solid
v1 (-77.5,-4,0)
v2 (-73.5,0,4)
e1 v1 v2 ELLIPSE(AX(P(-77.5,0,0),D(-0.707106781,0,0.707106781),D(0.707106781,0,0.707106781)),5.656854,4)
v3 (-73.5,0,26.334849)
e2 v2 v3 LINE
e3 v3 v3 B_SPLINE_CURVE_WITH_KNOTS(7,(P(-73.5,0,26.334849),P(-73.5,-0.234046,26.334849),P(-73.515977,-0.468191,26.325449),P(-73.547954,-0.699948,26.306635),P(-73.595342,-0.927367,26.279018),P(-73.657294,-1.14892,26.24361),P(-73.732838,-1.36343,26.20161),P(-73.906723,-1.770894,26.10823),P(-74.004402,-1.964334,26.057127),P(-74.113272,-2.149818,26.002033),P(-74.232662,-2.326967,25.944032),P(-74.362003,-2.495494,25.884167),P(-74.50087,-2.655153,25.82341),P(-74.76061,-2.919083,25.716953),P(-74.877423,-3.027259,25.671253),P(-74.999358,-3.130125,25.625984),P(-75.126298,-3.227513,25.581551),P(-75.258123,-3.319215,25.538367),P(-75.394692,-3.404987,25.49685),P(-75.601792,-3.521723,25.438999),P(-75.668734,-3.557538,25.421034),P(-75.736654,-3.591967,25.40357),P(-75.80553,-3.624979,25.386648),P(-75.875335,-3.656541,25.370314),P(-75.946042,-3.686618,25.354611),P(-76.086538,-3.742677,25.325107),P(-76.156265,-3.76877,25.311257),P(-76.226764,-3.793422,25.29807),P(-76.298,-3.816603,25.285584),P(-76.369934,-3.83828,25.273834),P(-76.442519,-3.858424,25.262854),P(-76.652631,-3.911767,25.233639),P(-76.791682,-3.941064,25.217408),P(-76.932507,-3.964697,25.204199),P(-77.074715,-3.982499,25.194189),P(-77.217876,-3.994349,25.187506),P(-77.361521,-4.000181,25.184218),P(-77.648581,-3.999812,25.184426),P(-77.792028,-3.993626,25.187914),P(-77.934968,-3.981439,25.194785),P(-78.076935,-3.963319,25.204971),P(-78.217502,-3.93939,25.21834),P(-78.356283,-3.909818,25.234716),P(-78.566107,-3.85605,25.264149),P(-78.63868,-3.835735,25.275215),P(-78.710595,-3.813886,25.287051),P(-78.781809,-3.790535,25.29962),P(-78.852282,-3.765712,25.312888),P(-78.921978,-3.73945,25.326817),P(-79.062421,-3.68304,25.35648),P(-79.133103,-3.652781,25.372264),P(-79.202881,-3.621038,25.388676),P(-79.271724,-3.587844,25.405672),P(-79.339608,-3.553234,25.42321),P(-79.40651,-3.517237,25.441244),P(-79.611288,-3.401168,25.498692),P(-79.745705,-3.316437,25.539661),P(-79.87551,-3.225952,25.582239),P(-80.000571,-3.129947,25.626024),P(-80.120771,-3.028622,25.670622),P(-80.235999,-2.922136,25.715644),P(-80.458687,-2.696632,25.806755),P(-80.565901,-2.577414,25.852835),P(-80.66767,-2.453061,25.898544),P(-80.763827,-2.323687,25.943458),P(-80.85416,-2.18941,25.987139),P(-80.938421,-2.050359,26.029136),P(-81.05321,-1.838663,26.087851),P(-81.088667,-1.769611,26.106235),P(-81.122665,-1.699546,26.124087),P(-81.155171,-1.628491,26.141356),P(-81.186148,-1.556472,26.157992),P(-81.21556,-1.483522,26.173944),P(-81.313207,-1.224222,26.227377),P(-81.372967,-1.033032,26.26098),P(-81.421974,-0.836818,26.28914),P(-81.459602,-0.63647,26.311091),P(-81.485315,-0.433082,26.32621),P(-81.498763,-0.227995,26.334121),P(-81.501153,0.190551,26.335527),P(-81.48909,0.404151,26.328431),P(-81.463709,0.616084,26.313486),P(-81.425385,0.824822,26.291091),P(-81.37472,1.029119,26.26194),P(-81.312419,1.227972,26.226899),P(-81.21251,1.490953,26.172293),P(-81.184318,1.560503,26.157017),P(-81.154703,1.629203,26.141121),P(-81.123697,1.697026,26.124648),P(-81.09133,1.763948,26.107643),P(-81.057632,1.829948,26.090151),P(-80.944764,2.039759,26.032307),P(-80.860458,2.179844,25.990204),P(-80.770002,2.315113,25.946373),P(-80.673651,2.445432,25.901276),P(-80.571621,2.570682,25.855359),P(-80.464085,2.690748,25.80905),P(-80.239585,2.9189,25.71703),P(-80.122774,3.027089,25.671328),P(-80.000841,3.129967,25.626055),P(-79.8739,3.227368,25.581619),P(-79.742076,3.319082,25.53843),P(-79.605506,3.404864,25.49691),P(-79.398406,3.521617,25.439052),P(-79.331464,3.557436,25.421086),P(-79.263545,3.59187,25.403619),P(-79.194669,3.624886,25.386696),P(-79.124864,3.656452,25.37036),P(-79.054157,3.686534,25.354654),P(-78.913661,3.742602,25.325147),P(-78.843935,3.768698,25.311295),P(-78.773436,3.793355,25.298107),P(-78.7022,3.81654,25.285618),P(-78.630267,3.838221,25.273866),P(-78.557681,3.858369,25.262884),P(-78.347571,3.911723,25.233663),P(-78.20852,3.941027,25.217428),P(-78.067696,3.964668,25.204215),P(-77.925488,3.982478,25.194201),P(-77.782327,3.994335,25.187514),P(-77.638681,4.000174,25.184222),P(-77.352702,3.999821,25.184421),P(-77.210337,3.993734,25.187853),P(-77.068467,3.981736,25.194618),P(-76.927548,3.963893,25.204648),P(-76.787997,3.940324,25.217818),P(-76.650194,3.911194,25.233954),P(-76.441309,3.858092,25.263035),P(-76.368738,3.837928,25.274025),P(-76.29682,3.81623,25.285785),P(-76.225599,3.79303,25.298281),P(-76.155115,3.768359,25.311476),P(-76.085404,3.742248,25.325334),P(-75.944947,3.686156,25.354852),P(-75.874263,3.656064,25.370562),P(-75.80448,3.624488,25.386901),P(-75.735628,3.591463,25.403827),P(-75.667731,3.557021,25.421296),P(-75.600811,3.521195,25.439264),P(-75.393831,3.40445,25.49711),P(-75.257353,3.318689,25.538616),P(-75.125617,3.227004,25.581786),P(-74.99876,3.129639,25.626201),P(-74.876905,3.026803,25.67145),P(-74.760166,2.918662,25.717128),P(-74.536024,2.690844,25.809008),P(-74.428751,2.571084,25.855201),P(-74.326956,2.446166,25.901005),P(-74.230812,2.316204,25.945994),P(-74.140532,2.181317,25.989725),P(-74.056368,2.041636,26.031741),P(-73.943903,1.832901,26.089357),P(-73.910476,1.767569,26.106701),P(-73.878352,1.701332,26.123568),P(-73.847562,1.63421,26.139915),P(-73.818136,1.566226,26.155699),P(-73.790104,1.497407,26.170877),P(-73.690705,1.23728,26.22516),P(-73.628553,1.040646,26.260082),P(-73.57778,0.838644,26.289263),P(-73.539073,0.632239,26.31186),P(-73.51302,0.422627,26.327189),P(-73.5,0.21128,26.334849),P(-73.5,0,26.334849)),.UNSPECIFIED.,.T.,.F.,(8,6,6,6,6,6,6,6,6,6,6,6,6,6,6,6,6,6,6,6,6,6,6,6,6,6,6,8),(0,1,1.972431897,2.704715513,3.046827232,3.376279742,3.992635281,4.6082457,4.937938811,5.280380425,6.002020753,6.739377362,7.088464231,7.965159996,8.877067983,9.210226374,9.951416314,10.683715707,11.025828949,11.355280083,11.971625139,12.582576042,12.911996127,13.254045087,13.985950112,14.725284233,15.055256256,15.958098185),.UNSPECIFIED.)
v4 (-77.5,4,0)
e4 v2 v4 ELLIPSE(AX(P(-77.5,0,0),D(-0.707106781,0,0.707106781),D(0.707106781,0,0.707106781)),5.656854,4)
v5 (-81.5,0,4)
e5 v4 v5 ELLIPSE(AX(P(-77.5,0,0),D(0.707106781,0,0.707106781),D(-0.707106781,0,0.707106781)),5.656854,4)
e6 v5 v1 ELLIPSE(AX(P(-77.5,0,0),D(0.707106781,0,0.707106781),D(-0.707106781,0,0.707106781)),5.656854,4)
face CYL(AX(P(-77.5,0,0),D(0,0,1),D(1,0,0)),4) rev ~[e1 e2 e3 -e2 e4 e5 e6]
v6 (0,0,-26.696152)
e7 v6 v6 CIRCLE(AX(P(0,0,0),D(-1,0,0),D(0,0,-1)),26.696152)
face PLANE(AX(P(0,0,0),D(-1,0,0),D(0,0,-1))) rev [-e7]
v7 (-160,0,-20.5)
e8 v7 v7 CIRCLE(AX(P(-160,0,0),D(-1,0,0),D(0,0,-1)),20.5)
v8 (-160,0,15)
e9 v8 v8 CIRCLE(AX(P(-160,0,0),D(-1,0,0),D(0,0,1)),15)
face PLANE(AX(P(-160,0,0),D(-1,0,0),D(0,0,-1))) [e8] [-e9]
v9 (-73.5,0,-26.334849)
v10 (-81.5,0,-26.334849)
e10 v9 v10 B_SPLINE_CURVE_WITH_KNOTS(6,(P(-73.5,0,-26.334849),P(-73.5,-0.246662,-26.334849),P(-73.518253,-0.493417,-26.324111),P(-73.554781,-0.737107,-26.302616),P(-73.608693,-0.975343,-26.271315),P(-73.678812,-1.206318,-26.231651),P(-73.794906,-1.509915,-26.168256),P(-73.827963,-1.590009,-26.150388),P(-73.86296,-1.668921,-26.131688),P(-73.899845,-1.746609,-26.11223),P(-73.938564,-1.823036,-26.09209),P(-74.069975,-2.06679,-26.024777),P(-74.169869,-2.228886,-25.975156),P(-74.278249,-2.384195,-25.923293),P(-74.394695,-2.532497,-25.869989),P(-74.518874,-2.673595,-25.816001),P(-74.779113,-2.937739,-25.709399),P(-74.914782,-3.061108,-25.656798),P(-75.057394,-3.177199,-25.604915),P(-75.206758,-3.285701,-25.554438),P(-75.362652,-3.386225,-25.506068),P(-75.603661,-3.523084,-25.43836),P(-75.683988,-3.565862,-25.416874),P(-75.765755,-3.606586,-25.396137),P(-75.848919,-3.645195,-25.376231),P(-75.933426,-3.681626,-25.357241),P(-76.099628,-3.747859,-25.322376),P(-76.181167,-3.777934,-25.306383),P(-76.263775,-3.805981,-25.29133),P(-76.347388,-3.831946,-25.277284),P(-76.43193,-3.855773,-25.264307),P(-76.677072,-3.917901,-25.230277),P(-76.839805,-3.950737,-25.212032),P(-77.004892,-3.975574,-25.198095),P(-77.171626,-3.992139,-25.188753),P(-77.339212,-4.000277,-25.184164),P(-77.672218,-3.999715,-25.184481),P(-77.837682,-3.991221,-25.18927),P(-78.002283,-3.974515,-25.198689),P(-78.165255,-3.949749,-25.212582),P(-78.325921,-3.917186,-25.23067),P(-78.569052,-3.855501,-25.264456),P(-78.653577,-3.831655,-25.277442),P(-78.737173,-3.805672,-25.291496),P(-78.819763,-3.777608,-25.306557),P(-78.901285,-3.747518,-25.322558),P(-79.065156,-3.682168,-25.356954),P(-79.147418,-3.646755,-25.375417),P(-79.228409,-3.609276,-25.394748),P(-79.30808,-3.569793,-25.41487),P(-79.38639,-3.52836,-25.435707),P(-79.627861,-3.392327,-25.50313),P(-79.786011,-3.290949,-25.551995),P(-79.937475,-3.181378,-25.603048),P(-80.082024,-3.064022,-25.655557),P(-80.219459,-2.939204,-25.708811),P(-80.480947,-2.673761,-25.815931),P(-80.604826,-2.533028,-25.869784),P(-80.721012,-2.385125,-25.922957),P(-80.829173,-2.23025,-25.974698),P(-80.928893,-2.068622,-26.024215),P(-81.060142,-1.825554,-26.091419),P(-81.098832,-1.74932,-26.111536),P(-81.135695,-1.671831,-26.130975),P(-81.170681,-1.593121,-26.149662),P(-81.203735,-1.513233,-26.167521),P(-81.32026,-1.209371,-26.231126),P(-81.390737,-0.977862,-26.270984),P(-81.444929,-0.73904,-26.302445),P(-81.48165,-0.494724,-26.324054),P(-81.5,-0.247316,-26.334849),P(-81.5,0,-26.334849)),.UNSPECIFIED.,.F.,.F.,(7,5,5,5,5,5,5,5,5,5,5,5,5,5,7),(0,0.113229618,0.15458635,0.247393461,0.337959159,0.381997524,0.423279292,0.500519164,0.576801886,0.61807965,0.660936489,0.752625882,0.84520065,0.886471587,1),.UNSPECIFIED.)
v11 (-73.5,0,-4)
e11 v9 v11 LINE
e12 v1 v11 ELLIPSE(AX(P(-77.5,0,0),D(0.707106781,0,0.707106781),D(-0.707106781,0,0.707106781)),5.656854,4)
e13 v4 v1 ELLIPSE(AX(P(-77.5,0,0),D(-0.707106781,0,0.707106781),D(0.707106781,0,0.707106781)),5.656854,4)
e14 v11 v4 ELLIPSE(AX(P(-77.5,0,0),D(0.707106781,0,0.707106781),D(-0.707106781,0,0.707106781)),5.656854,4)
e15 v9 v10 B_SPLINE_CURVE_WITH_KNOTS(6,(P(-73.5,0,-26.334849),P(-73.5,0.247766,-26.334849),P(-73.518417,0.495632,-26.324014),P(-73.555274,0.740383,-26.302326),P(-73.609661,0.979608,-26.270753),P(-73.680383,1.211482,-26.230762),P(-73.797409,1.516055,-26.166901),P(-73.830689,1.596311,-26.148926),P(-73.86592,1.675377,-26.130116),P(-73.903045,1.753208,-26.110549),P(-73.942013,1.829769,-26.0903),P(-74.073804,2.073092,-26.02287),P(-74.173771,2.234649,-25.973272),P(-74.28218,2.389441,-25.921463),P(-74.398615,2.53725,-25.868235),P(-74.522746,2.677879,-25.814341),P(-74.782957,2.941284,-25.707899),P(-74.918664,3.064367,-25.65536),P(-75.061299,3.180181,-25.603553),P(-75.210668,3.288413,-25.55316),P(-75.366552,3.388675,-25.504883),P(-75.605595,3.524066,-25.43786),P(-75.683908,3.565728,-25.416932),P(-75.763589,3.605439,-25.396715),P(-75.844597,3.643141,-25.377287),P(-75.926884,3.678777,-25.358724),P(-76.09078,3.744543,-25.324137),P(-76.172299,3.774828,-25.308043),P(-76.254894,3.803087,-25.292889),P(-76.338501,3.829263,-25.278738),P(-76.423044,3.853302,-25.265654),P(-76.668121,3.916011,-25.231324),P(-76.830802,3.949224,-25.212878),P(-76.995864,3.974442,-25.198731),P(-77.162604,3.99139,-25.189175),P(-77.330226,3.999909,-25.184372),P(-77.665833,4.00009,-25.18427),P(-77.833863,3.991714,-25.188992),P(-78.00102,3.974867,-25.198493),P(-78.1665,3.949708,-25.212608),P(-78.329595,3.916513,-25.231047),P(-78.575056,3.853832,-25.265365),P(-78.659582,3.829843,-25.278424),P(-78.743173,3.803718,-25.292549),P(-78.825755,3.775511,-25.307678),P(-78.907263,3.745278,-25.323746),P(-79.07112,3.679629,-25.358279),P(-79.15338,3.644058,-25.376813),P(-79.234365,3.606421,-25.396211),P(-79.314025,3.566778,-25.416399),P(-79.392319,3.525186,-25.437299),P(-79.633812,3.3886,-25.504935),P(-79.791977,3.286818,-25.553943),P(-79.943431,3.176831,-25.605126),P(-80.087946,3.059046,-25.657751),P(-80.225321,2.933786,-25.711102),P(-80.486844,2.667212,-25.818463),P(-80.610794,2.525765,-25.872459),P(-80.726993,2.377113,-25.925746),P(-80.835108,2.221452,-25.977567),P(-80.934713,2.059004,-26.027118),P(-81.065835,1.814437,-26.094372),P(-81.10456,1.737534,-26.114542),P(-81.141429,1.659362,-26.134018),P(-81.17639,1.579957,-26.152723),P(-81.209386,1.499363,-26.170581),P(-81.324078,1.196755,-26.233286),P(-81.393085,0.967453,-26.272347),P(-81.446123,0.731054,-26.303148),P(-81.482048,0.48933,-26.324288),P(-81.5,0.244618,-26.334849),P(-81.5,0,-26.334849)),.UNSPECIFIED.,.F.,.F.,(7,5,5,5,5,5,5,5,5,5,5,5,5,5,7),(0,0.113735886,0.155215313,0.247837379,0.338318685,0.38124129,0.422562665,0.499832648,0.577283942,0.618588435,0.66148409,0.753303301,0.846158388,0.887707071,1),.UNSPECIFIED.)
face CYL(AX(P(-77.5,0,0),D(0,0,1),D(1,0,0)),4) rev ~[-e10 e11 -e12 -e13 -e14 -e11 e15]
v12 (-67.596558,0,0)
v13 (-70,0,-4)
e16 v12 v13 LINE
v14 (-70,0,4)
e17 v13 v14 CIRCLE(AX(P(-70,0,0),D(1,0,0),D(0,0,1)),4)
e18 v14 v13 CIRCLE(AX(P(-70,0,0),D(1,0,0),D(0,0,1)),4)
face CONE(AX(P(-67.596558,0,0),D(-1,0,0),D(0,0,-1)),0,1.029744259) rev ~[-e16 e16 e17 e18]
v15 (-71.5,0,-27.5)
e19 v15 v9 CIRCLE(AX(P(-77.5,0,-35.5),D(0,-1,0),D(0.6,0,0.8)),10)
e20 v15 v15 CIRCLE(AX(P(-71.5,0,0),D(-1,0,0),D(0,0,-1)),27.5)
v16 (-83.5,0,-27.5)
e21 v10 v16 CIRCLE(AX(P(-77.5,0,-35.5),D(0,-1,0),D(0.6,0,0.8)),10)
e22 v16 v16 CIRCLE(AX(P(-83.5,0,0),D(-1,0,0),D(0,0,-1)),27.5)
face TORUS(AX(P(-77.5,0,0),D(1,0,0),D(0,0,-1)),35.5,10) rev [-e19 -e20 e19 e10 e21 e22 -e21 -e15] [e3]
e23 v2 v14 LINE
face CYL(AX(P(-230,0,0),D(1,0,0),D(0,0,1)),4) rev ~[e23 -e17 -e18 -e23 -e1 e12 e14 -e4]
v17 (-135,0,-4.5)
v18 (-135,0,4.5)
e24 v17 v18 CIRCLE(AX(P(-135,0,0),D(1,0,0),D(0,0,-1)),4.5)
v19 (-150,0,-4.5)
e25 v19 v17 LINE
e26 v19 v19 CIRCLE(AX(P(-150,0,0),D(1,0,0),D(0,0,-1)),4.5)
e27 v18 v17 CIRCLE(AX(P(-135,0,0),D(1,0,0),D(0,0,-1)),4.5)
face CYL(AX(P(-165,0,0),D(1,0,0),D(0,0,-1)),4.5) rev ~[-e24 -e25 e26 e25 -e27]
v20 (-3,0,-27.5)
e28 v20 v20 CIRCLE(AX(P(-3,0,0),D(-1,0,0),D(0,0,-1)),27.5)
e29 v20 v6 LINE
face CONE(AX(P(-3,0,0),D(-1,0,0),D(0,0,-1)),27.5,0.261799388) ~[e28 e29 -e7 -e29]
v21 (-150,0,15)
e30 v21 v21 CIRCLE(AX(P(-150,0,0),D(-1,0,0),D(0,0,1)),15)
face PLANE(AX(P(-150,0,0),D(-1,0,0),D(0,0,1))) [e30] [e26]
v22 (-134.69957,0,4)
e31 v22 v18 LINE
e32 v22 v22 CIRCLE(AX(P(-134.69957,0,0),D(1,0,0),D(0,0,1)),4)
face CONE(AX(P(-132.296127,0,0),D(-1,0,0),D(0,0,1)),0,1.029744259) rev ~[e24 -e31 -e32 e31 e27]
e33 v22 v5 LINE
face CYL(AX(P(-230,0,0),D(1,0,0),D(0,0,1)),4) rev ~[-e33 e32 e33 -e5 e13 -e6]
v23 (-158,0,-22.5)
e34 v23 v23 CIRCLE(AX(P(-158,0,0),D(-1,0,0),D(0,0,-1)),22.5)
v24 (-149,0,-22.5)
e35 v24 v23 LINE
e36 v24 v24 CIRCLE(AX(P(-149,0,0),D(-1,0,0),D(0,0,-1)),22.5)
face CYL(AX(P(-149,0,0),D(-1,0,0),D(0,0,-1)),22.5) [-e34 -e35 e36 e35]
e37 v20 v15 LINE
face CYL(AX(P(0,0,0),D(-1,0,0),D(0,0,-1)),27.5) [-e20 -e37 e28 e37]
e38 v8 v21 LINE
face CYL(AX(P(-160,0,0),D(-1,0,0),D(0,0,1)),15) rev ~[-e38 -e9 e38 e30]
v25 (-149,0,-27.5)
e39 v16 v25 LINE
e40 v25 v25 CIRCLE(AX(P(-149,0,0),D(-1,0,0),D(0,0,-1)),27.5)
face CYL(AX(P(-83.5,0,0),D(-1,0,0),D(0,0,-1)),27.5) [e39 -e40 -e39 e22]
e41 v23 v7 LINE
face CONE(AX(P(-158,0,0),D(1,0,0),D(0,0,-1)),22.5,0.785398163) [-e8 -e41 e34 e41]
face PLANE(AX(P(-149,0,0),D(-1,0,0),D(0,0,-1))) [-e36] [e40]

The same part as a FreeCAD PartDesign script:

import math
import FreeCAD as App
import Part
import Sketcher

V = App.Vector
Q = App.Units.Quantity


def edges_at(feature, points):
    """Names of the edges that pass closest to the given points."""
    edges = feature.Shape.Edges
    near = lambda p: min(range(len(edges)), key=lambda i: edges[i].distToShape(Part.Vertex(*p))[0])
    return sorted({f"Edge{near(p) + 1}" for p in points})

doc = App.newDocument("Part")
params = doc.addObject("Spreadsheet::Sheet", "Params")
for row, (alias, value) in enumerate([
    ("sketch1_radius", "10 mm"),
    ("sketch1_width", "11 mm"),
    ("sketch1_width2", "160 mm"),
    ("sketch1_height", "5 mm"),
    ("sketch1_width3", "71.5 mm"),
    ("revolution_angle", "360 deg"),
    ("sketch2_diameter", "8 mm"),
    ("pocket1_length", "60 mm"),
    ("chamfer_size", "2 mm"),
    ("chamfer2_size", "3 mm"),
    ("chamfer2_size2", "0.803848 mm"),
    ("sketch3_diameter", "30 mm"),
    ("pocket2_length", "10 mm"),
    ("sketch4_diameter", "8 mm"),
    ("hole_diameter", "8 mm"),
    ("hole_depth", "80 mm"),
    ("sketch5_diameter", "9 mm"),
    ("hole2_diameter", "9 mm"),
    ("hole2_depth", "15 mm"),
], start=1):
    params.set(f"A{row}", alias)
    params.set(f"B{row}", "=" + value)
    params.setAlias(f"B{row}", alias)

body = doc.addObject("PartDesign::Body", "Body")

sketch1 = body.newObject("Sketcher::SketchObject", "Sketch")
sketch1.AttachmentSupport = (doc.getObject("XY_Plane"), [""])
sketch1.MapMode = "FlatFace"
sketch1.addGeometry([
    Part.LineSegment(V(0, 0, 0), V(0, 27.5, 0)),
    Part.LineSegment(V(0, 27.5, 0), V(-71.5, 27.5, 0)),
    Part.ArcOfCircle(Part.Circle(V(-77.5, 35.5, 0), V(0, 0, 1), 10), math.radians(-126.869898), math.radians(-53.130102)),
    Part.LineSegment(V(-83.5, 27.5, 0), V(-149, 27.5, 0)),
    Part.LineSegment(V(-149, 27.5, 0), V(-149, 22.5, 0)),
    Part.LineSegment(V(-149, 22.5, 0), V(-160, 22.5, 0)),
    Part.LineSegment(V(-160, 22.5, 0), V(-160, 0, 0)),
    Part.LineSegment(V(-160, 0, 0), V(0, 0, 0)),
], False)
sketch1.addConstraint([
    Sketcher.Constraint("Coincident", 0, 2, 1, 1),
    Sketcher.Constraint("Coincident", 1, 2, 2, 2),
    Sketcher.Constraint("Coincident", 2, 1, 3, 1),
    Sketcher.Constraint("Coincident", 3, 2, 4, 1),
    Sketcher.Constraint("Coincident", 4, 2, 5, 1),
    Sketcher.Constraint("Coincident", 5, 2, 6, 1),
    Sketcher.Constraint("Coincident", 6, 2, 7, 1),
    Sketcher.Constraint("Coincident", 7, 2, 0, 1),
    Sketcher.Constraint("Vertical", 0),
    Sketcher.Constraint("Horizontal", 1),
    Sketcher.Constraint("Horizontal", 3),
    Sketcher.Constraint("Vertical", 4),
    Sketcher.Constraint("Horizontal", 5),
    Sketcher.Constraint("Vertical", 6),
    Sketcher.Constraint("Horizontal", 7),
    Sketcher.Constraint("Coincident", 7, 2, -1, 1),
    Sketcher.Constraint("Horizontal", 1, 2, 2, 1),
    Sketcher.Constraint("Radius", 2, Q("10 mm")),
    Sketcher.Constraint("DistanceX", 5, 2, 5, 1, Q("11 mm")),
    Sketcher.Constraint("DistanceX", 7, 1, 7, 2, Q("160 mm")),
    Sketcher.Constraint("DistanceY", 4, 2, 4, 1, Q("5 mm")),
    Sketcher.Constraint("DistanceX", 1, 2, 1, 1, Q("71.5 mm")),
    Sketcher.Constraint("DistanceX", 3, 2, 3, 1, Q("65.5 mm")),
    Sketcher.Constraint("DistanceY", 0, 1, 0, 2, Q("27.5 mm")),
])
sketch1.setExpression("Constraints[17]", "Params.sketch1_radius")
sketch1.setExpression("Constraints[18]", "Params.sketch1_width")
sketch1.setExpression("Constraints[19]", "Params.sketch1_width2")
sketch1.setExpression("Constraints[20]", "Params.sketch1_height")
sketch1.setExpression("Constraints[21]", "Params.sketch1_width3")
revolution = body.newObject("PartDesign::Revolution", "Revolution")
revolution.Profile = sketch1
revolution.ReferenceAxis = (sketch1, ["H_Axis"])
revolution.setExpression("Angle", "Params.revolution_angle")

sketch2 = body.newObject("Sketcher::SketchObject", "Sketch001")
sketch2.AttachmentSupport = (doc.getObject("XY_Plane"), [""])
sketch2.MapMode = "FlatFace"
sketch2.addGeometry(Part.Circle(V(-77.5, 0, 0), V(0, 0, 1), 4), False)
sketch2.addConstraint([
    Sketcher.Constraint("PointOnObject", 0, 3, -1),
    Sketcher.Constraint("Diameter", 0, Q("8 mm")),
    Sketcher.Constraint("DistanceX", 0, 3, -1, 1, Q("77.5 mm")),
])
sketch2.setExpression("Constraints[1]", "Params.sketch2_diameter")
pocket1 = body.newObject("PartDesign::Pocket", "Pocket")
pocket1.Profile = sketch2
pocket1.setExpression("Length", "Params.pocket1_length")
pocket1.Midplane = True
doc.recompute()

chamfer = body.newObject("PartDesign::Chamfer", "Chamfer")
chamfer.Base = (pocket1, edges_at(pocket1, [(-160, 0, 22.5)]))
chamfer.setExpression("Size", "Params.chamfer_size")
doc.recompute()

chamfer2 = body.newObject("PartDesign::Chamfer", "Chamfer001")
chamfer2.Base = (chamfer, edges_at(chamfer, [(0, 0, 27.5)]))
chamfer2.ChamferType = "Two distances"
chamfer2.setExpression("Size", "Params.chamfer2_size")
chamfer2.setExpression("Size2", "Params.chamfer2_size2")

sketch3 = body.newObject("Sketcher::SketchObject", "Sketch002")
sketch3.AttachmentSupport = (doc.getObject("YZ_Plane"), [""])
sketch3.MapMode = "FlatFace"
sketch3.AttachmentOffset = App.Placement(V(0, 0, -160), App.Rotation())
sketch3.addGeometry(Part.Circle(V(0, 0, 0), V(0, 0, 1), 15), False)
sketch3.addConstraint([
    Sketcher.Constraint("Coincident", 0, 3, -1, 1),
    Sketcher.Constraint("Diameter", 0, Q("30 mm")),
])
sketch3.setExpression("Constraints[1]", "Params.sketch3_diameter")
pocket2 = body.newObject("PartDesign::Pocket", "Pocket001")
pocket2.Profile = sketch3
pocket2.setExpression("Length", "Params.pocket2_length")
pocket2.Reversed = True

sketch4 = body.newObject("Sketcher::SketchObject", "Sketch003")
sketch4.AttachmentSupport = (doc.getObject("YZ_Plane"), [""])
sketch4.MapMode = "FlatFace"
sketch4.AttachmentOffset = App.Placement(V(0, 0, -150), App.Rotation())
sketch4.addGeometry(Part.Circle(V(0, 0, 0), V(0, 0, 1), 4), False)
sketch4.addConstraint([
    Sketcher.Constraint("Coincident", 0, 3, -1, 1),
    Sketcher.Constraint("Diameter", 0, Q("8 mm")),
])
sketch4.setExpression("Constraints[1]", "Params.sketch4_diameter")
doc.recompute()
hole = body.newObject("PartDesign::Hole", "Hole")
hole.Profile = sketch4
hole.ThreadType = "None"
hole.setExpression("Diameter", "Params.hole_diameter")
hole.DepthType = "Dimension"
hole.setExpression("Depth", "Params.hole_depth")
hole.DrillPoint = "Angled"
hole.DrillPointAngle = 118
hole.Reversed = True

sketch5 = body.newObject("Sketcher::SketchObject", "Sketch004")
sketch5.AttachmentSupport = (doc.getObject("YZ_Plane"), [""])
sketch5.MapMode = "FlatFace"
sketch5.AttachmentOffset = App.Placement(V(0, 0, -150), App.Rotation())
sketch5.addGeometry(Part.Circle(V(0, 0, 0), V(0, 0, 1), 4.5), False)
sketch5.addConstraint([
    Sketcher.Constraint("Coincident", 0, 3, -1, 1),
    Sketcher.Constraint("Diameter", 0, Q("9 mm")),
])
sketch5.setExpression("Constraints[1]", "Params.sketch5_diameter")
doc.recompute()
hole2 = body.newObject("PartDesign::Hole", "Hole001")
hole2.Profile = sketch5
hole2.ThreadType = "None"
hole2.setExpression("Diameter", "Params.hole2_diameter")
hole2.DepthType = "Dimension"
hole2.setExpression("Depth", "Params.hole2_depth")
hole2.DrillPoint = "Angled"
hole2.DrillPointAngle = 118
hole2.Reversed = True

doc.recompute()
